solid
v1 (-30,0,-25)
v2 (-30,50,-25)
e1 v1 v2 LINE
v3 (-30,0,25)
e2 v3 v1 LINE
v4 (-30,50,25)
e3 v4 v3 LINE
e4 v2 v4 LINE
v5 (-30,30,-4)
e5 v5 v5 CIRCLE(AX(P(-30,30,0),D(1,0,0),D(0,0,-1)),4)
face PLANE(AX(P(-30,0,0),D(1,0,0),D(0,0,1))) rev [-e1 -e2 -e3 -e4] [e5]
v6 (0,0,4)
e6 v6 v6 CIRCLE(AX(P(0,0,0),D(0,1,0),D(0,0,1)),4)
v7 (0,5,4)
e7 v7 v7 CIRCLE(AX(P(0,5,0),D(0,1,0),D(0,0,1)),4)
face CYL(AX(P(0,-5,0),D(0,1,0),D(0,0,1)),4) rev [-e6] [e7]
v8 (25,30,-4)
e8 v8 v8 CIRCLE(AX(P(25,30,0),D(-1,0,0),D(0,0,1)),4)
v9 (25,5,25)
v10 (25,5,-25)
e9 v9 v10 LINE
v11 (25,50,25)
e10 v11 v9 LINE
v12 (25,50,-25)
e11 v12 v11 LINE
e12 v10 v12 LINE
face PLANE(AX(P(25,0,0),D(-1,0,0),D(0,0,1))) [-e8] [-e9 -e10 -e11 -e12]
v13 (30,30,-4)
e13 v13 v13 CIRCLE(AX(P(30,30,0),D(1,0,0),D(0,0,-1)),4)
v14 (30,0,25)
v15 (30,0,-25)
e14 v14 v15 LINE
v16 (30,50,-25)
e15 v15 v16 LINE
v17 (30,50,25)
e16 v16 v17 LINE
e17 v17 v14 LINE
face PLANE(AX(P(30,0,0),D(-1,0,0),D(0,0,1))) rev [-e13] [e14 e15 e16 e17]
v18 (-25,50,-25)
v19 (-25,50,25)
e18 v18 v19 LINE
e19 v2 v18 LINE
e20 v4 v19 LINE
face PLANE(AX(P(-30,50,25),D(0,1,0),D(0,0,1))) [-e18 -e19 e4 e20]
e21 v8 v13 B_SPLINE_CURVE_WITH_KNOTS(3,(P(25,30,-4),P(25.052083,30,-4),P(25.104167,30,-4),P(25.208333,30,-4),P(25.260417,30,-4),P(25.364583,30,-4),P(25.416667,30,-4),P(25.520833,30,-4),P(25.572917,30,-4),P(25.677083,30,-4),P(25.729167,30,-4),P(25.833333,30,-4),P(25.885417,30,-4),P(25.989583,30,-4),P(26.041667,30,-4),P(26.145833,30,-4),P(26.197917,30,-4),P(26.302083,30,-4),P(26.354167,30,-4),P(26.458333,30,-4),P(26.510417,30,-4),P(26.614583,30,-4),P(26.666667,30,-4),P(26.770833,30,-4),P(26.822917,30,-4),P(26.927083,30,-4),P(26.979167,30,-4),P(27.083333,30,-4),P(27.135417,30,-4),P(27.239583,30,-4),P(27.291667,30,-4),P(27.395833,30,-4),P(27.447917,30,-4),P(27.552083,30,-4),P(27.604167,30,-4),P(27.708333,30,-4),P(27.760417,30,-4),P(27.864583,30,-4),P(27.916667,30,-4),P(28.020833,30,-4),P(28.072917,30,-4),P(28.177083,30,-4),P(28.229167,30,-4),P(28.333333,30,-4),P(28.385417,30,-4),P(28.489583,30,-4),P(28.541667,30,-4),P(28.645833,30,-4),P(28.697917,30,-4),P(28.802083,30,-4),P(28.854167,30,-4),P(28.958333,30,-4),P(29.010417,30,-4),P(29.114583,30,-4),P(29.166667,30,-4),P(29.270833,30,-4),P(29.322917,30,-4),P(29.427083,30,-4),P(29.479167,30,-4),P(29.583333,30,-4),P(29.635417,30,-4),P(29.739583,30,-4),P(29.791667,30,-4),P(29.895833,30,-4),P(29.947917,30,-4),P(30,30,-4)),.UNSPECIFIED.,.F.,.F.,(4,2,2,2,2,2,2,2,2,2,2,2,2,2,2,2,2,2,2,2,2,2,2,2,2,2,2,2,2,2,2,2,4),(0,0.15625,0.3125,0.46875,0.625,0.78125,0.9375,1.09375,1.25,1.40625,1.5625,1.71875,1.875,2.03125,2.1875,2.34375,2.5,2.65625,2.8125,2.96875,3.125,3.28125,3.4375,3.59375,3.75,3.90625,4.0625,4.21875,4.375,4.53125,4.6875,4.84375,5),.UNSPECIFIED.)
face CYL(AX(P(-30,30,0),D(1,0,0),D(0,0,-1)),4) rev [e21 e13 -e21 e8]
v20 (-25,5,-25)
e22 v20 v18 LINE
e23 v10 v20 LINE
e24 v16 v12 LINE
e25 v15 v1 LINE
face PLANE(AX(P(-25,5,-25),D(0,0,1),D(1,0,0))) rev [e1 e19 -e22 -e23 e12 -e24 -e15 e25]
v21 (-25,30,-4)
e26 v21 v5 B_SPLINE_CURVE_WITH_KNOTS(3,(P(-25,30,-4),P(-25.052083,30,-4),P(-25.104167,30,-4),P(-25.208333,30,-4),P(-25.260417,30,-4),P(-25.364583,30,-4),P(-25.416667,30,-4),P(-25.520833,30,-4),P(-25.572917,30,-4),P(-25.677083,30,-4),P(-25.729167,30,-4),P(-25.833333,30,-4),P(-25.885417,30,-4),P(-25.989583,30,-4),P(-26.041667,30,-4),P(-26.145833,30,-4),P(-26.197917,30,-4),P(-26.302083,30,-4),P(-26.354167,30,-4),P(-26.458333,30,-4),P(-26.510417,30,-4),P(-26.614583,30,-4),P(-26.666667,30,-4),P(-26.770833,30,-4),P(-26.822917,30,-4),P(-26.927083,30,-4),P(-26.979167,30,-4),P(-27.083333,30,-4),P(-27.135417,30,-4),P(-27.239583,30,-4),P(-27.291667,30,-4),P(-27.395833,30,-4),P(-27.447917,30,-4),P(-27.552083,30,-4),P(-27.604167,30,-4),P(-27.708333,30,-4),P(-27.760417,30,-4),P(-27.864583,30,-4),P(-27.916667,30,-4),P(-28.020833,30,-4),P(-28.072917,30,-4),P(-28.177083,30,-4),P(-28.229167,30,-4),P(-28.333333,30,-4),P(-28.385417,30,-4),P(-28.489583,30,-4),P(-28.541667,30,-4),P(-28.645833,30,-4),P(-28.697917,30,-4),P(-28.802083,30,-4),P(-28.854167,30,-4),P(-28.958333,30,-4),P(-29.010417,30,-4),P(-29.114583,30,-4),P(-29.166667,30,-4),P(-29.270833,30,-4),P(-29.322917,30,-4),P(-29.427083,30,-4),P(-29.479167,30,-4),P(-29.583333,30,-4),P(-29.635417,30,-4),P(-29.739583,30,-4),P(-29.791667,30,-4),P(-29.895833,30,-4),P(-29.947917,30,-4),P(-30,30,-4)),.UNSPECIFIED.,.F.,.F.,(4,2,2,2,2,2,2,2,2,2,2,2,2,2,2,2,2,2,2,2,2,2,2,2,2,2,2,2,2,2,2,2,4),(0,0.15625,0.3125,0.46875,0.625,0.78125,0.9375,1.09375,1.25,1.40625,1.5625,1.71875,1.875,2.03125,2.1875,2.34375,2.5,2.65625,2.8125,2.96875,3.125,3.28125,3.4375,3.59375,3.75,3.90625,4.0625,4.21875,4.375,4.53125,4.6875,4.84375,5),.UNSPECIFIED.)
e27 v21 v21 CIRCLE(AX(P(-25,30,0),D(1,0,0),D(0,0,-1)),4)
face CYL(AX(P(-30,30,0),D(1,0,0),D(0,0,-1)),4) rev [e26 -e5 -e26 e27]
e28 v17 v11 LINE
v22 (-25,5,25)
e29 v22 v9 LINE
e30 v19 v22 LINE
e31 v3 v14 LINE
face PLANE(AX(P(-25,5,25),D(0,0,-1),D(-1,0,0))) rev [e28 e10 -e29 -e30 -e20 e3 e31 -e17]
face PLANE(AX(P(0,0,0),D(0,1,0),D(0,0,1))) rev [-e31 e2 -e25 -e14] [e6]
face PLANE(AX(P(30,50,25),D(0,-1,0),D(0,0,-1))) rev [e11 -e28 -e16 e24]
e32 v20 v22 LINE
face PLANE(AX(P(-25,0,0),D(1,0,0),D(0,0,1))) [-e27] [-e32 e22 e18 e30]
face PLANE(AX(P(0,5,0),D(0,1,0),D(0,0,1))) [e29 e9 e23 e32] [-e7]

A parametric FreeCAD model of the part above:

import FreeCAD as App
import Part
import Sketcher

doc = App.newDocument("Part")
params = doc.addObject("Spreadsheet::Sheet", "Params")
for row, (alias, value) in enumerate([
    ("sketch1_width", "50 mm"),
    ("pad1_length", "5 mm"),
    ("sketch2_width", "50 mm"),
    ("pad2_length", "5 mm"),
    ("sketch3_diameter", "8 mm"),
    ("pocket1_length", "10 mm"),
    ("sketch4_diameter", "8 mm"),
], start=1):
    params.set(f"A{row}", alias)
    params.set(f"B{row}", "=" + value)
    params.setAlias(f"B{row}", alias)

body = doc.addObject("PartDesign::Body", "Body")

# Sketch on XZ plane
sketch1 = body.newObject("Sketcher::SketchObject", "Sketch")
sketch1.AttachmentSupport = (doc.getObject("XZ_Plane"), [""])
sketch1.MapMode = "FlatFace"
sketch1.addGeometry([
    Part.LineSegment(App.Vector(-25, -25, 0), App.Vector(-25, 25, 0)),
    Part.LineSegment(App.Vector(-25, 25, 0), App.Vector(25, 25, 0)),
    Part.LineSegment(App.Vector(25, 25, 0), App.Vector(25, -25, 0)),
    Part.LineSegment(App.Vector(25, -25, 0), App.Vector(-25, -25, 0)),
], False)
sketch1.addConstraint([
    Sketcher.Constraint("Coincident", 0, 2, 1, 1),
    Sketcher.Constraint("Coincident", 1, 2, 2, 1),
    Sketcher.Constraint("Coincident", 2, 2, 3, 1),
    Sketcher.Constraint("Coincident", 3, 2, 0, 1),
    Sketcher.Constraint("Vertical", 0),
    Sketcher.Constraint("Horizontal", 1),
    Sketcher.Constraint("Vertical", 2),
    Sketcher.Constraint("Horizontal", 3),
    Sketcher.Constraint("Symmetric", 0, 2, 2, 2, -1, 1),
    Sketcher.Constraint("Equal", 3, 0),
    Sketcher.Constraint("DistanceX", 1, 1, 1, 2, 50.0),
])
sketch1.setExpression("Constraints[10]", "Params.sketch1_width")
pad1 = body.newObject("PartDesign::Pad", "Pad")
pad1.Profile = sketch1
pad1.setExpression("Length", "Params.pad1_length")
pad1.Reversed = True

# Sketch on YZ plane
sketch2 = body.newObject("Sketcher::SketchObject", "Sketch001")
sketch2.AttachmentSupport = (doc.getObject("YZ_Plane"), [""])
sketch2.MapMode = "FlatFace"
sketch2.AttachmentOffset = App.Placement(App.Vector(0, 0, 25), App.Rotation())
sketch2.addGeometry([
    Part.LineSegment(App.Vector(50, 25, 0), App.Vector(0, 25, 0)),
    Part.LineSegment(App.Vector(0, 25, 0), App.Vector(0, -25, 0)),
    Part.LineSegment(App.Vector(0, -25, 0), App.Vector(50, -25, 0)),
    Part.LineSegment(App.Vector(50, -25, 0), App.Vector(50, 25, 0)),
], False)
sketch2.addConstraint([
    Sketcher.Constraint("Coincident", 0, 2, 1, 1),
    Sketcher.Constraint("Coincident", 1, 2, 2, 1),
    Sketcher.Constraint("Coincident", 2, 2, 3, 1),
    Sketcher.Constraint("Coincident", 3, 2, 0, 1),
    Sketcher.Constraint("Horizontal", 0),
    Sketcher.Constraint("Vertical", 1),
    Sketcher.Constraint("Horizontal", 2),
    Sketcher.Constraint("Vertical", 3),
    Sketcher.Constraint("Symmetric", 0, 2, 1, 2, -1, 1),
    Sketcher.Constraint("Equal", 2, 1),
    Sketcher.Constraint("DistanceX", 0, 2, 0, 1, 50.0),
])
sketch2.setExpression("Constraints[10]", "Params.sketch2_width")
pad2 = body.newObject("PartDesign::Pad", "Pad001")
pad2.Profile = sketch2
pad2.setExpression("Length", "Params.pad2_length")
doc.recompute()

mirrored = body.newObject("PartDesign::Mirrored", "Mirrored")
mirrored.Originals = [pad2]
mirrored.MirrorPlane = (doc.getObject("YZ_Plane"), [""])
body.Tip = mirrored

# Sketch on XZ plane
sketch3 = body.newObject("Sketcher::SketchObject", "Sketch002")
sketch3.AttachmentSupport = (doc.getObject("XZ_Plane"), [""])
sketch3.MapMode = "FlatFace"
sketch3.AttachmentOffset = App.Placement(App.Vector(0, 0, -5), App.Rotation())
sketch3.addGeometry(Part.Circle(App.Vector(0, 0, 0), App.Vector(0, 0, 1), 4), False)
sketch3.addConstraint([
    Sketcher.Constraint("Coincident", 0, 3, -1, 1),
    Sketcher.Constraint("Diameter", 0, 8.0),
])
sketch3.setExpression("Constraints[1]", "Params.sketch3_diameter")
pocket1 = body.newObject("PartDesign::Pocket", "Pocket")
pocket1.Profile = sketch3
pocket1.setExpression("Length", "Params.pocket1_length")
pocket1.Reversed = True

# Sketch on YZ plane
sketch4 = body.newObject("Sketcher::SketchObject", "Sketch003")
sketch4.AttachmentSupport = (doc.getObject("YZ_Plane"), [""])
sketch4.MapMode = "FlatFace"
sketch4.AttachmentOffset = App.Placement(App.Vector(0, 0, 30), App.Rotation())
sketch4.addGeometry(Part.Circle(App.Vector(30, 0, 0), App.Vector(0, 0, 1), 4), False)
sketch4.addConstraint([
    Sketcher.Constraint("PointOnObject", 0, 3, -1),
    Sketcher.Constraint("Diameter", 0, 8.0),
    Sketcher.Constraint("DistanceX", -1, 1, 0, 3, 30.0),
])
sketch4.setExpression("Constraints[1]", "Params.sketch4_diameter")
pocket2 = body.newObject("PartDesign::Pocket", "Pocket001")
pocket2.Profile = sketch4
pocket2.Type = "ThroughAll"

doc.recompute()
